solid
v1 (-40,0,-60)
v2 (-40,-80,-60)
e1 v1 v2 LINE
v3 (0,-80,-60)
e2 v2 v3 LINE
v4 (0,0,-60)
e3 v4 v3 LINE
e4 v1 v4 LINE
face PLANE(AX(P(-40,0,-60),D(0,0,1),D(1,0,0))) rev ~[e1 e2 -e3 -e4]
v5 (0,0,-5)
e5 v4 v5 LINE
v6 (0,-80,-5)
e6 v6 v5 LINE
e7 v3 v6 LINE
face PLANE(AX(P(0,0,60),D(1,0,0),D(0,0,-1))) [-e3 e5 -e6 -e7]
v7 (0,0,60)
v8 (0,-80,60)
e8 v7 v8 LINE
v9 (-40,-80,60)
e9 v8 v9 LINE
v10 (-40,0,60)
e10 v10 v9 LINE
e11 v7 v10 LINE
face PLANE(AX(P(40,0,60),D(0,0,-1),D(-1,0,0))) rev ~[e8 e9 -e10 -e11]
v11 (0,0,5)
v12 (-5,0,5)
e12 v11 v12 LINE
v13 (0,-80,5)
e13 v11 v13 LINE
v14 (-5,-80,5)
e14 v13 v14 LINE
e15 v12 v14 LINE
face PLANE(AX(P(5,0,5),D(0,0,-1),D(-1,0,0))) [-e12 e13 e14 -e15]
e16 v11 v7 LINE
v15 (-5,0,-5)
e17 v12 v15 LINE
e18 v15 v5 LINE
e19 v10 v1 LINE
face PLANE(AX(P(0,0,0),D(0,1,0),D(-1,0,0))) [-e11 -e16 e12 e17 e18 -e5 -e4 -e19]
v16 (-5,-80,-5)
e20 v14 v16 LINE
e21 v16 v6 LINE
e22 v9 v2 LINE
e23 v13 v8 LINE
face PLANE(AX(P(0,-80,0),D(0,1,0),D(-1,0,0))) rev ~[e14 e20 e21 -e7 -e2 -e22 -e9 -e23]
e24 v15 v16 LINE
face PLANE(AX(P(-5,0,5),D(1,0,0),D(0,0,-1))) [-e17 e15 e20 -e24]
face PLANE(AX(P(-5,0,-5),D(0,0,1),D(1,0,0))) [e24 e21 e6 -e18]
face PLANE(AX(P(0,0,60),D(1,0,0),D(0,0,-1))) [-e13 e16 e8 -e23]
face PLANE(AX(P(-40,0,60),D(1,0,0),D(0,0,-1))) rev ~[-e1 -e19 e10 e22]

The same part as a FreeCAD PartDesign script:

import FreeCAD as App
import Part
import Sketcher
from FreeCAD import Vector
Q = App.Units.Quantity

doc = App.newDocument("Part")
params = doc.addObject("Spreadsheet::Sheet", "Params")
for row, (alias, value) in enumerate([
    ("sketch1_width", "80 mm"),
    ("sketch1_width2", "10 mm"),
    ("sketch1_height", "120 mm"),
    ("pad1_length", "80 mm"),
    ("sketch2_width", "80 mm"),
    ("sketch2_height", "120 mm"),
    ("pocket1_length", "40 mm"),
], start=1):
    params.set(f"A{row}", alias)
    params.set(f"B{row}", "=" + value)
    params.setAlias(f"B{row}", alias)

body = doc.addObject("PartDesign::Body", "Body")

sketch1 = doc.addObject("Sketcher::SketchObject", "Sketch")
body.addObject(sketch1)
sketch1.AttachmentSupport = (doc.XZ_Plane, [""])
sketch1.MapMode = "FlatFace"
sketch1.addGeometry([
    Part.LineSegment(Vector(40, -60, 0), Vector(-40, -60, 0)),
    Part.LineSegment(Vector(-40, -60, 0), Vector(-40, 60, 0)),
    Part.LineSegment(Vector(-40, 60, 0), Vector(40, 60, 0)),
    Part.LineSegment(Vector(40, 60, 0), Vector(40, -60, 0)),
    Part.LineSegment(Vector(-5, 5, 0), Vector(-5, -5, 0)),
    Part.LineSegment(Vector(-5, -5, 0), Vector(5, -5, 0)),
    Part.LineSegment(Vector(5, -5, 0), Vector(5, 5, 0)),
    Part.LineSegment(Vector(5, 5, 0), Vector(-5, 5, 0)),
], False)
sketch1.addConstraint([
    Sketcher.Constraint("Coincident", 0, 2, 1, 1),
    Sketcher.Constraint("Coincident", 1, 2, 2, 1),
    Sketcher.Constraint("Coincident", 2, 2, 3, 1),
    Sketcher.Constraint("Coincident", 3, 2, 0, 1),
    Sketcher.Constraint("Coincident", 4, 2, 5, 1),
    Sketcher.Constraint("Coincident", 5, 2, 6, 1),
    Sketcher.Constraint("Coincident", 6, 2, 7, 1),
    Sketcher.Constraint("Coincident", 7, 2, 4, 1),
    Sketcher.Constraint("Horizontal", 0),
    Sketcher.Constraint("Vertical", 1),
    Sketcher.Constraint("Horizontal", 2),
    Sketcher.Constraint("Vertical", 3),
    Sketcher.Constraint("Vertical", 4),
    Sketcher.Constraint("Horizontal", 5),
    Sketcher.Constraint("Vertical", 6),
    Sketcher.Constraint("Horizontal", 7),
    Sketcher.Constraint("Symmetric", 0, 2, 2, 2, -1, 1),
    Sketcher.Constraint("Symmetric", 4, 2, 6, 2, -1, 1),
    Sketcher.Constraint("Equal", 7, 4),
    Sketcher.Constraint("DistanceX", 0, 2, 0, 1, Q("80 mm")),
    Sketcher.Constraint("DistanceX", 5, 1, 5, 2, Q("10 mm")),
    Sketcher.Constraint("DistanceY", 1, 1, 1, 2, Q("120 mm")),
])
sketch1.setExpression("Constraints[19]", "Params.sketch1_width")
sketch1.setExpression("Constraints[20]", "Params.sketch1_width2")
sketch1.setExpression("Constraints[21]", "Params.sketch1_height")
pad1 = doc.addObject("PartDesign::Pad", "Pad")
body.addObject(pad1)
pad1.Profile = sketch1
pad1.setExpression("Length", "Params.pad1_length")

sketch2 = doc.addObject("Sketcher::SketchObject", "Sketch001")
body.addObject(sketch2)
sketch2.AttachmentSupport = (doc.YZ_Plane, [""])
sketch2.MapMode = "FlatFace"
sketch2.AttachmentOffset = App.Placement(Vector(0, 0, 40), App.Rotation())
sketch2.addGeometry([
    Part.LineSegment(Vector(-80, -60, 0), Vector(0, -60, 0)),
    Part.LineSegment(Vector(0, -60, 0), Vector(0, 60, 0)),
    Part.LineSegment(Vector(0, 60, 0), Vector(-80, 60, 0)),
    Part.LineSegment(Vector(-80, 60, 0), Vector(-80, -60, 0)),
], False)
sketch2.addConstraint([
    Sketcher.Constraint("Coincident", 0, 2, 1, 1),
    Sketcher.Constraint("Coincident", 1, 2, 2, 1),
    Sketcher.Constraint("Coincident", 2, 2, 3, 1),
    Sketcher.Constraint("Coincident", 3, 2, 0, 1),
    Sketcher.Constraint("Horizontal", 0),
    Sketcher.Constraint("Vertical", 1),
    Sketcher.Constraint("Horizontal", 2),
    Sketcher.Constraint("Vertical", 3),
    Sketcher.Constraint("Symmetric", 0, 2, 1, 2, -1, 1),
    Sketcher.Constraint("DistanceX", 0, 1, 0, 2, Q("80 mm")),
    Sketcher.Constraint("DistanceY", 1, 1, 1, 2, Q("120 mm")),
])
sketch2.setExpression("Constraints[9]", "Params.sketch2_width")
sketch2.setExpression("Constraints[10]", "Params.sketch2_height")
pocket1 = doc.addObject("PartDesign::Pocket", "Pocket")
body.addObject(pocket1)
pocket1.Profile = sketch2
pocket1.setExpression("Length", "Params.pocket1_length")

doc.recompute()
